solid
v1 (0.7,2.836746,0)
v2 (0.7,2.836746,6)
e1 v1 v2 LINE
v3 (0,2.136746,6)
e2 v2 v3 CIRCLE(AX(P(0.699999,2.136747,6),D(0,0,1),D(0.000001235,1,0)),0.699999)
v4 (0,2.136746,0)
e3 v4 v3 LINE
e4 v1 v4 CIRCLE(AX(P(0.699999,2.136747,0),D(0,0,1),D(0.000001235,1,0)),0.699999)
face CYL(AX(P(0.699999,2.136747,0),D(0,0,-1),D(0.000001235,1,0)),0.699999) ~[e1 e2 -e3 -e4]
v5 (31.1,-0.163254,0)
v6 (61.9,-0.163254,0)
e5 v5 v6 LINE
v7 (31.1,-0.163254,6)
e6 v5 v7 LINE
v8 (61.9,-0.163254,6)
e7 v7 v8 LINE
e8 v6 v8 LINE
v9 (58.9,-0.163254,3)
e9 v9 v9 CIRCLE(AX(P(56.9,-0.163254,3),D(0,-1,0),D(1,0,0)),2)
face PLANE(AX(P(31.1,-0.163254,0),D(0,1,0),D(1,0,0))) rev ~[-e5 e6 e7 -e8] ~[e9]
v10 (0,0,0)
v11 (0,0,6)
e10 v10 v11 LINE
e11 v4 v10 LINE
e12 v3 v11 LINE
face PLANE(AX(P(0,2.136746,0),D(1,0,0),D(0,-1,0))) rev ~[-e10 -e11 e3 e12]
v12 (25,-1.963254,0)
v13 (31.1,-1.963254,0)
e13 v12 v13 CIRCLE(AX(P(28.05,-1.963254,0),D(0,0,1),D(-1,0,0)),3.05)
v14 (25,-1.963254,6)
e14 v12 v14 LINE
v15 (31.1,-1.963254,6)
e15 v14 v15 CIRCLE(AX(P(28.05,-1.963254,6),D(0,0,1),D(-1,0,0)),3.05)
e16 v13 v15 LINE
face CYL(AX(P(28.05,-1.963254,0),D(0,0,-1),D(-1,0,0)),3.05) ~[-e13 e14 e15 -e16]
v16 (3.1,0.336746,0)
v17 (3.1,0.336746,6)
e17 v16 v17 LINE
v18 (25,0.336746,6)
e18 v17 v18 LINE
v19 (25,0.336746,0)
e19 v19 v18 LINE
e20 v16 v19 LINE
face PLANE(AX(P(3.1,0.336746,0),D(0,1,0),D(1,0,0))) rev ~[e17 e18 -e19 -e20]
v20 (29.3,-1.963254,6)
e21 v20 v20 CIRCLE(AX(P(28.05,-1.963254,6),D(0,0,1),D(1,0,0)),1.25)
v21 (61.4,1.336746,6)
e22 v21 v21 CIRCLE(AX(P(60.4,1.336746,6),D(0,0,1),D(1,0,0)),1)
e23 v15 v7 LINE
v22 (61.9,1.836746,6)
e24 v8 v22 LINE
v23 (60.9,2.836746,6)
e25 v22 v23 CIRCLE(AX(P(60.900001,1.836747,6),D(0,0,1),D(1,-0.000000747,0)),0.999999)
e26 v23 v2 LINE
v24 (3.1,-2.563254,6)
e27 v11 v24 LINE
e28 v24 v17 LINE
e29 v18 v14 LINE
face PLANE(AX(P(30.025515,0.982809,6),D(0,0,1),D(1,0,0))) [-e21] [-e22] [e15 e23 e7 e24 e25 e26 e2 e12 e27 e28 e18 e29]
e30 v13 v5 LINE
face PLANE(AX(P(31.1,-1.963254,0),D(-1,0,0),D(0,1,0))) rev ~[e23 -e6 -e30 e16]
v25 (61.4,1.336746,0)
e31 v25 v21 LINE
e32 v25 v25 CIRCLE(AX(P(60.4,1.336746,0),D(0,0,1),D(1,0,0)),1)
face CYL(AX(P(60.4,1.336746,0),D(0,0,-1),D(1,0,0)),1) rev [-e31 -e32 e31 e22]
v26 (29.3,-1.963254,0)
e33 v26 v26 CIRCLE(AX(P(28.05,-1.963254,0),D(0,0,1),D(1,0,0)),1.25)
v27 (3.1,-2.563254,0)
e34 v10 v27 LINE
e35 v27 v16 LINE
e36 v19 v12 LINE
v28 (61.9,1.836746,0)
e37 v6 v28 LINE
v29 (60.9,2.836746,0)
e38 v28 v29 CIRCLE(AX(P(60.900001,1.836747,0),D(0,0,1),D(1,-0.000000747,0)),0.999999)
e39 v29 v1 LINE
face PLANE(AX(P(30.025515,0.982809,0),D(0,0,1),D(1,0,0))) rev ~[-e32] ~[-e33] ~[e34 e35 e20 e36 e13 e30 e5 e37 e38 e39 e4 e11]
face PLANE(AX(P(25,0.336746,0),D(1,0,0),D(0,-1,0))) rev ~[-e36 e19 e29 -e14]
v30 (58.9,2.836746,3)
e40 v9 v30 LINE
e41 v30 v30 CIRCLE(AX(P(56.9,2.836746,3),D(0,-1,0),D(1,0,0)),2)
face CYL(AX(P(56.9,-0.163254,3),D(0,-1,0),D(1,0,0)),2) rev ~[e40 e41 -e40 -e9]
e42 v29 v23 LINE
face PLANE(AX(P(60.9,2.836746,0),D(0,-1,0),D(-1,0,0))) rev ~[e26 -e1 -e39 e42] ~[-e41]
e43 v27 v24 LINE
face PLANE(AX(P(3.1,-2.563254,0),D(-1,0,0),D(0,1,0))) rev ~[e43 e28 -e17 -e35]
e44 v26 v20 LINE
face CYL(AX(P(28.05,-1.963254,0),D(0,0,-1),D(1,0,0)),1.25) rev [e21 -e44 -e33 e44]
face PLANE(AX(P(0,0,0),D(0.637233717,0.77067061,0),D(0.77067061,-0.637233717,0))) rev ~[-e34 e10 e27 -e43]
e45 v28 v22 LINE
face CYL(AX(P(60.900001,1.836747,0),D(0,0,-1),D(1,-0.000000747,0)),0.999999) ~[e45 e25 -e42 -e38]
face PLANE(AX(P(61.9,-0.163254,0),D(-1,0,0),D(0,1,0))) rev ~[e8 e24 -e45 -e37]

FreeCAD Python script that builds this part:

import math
import FreeCAD as App
import Part
import Sketcher
from FreeCAD import Vector
Q = App.Units.Quantity

doc = App.newDocument("Part")
params = doc.addObject("Spreadsheet::Sheet", "Params")
for row, (alias, value) in enumerate([
    ("sketch1_diameter", "2 mm"),
    ("sketch1_diameter2", "2.5 mm"),
    ("sketch1_radius", "0.699999 mm"),
    ("sketch1_height", "2 mm"),
    ("sketch1_radius2", "3.05 mm"),
    ("pad1_length", "6 mm"),
    ("sketch2_diameter", "4 mm"),
    ("pocket1_length", "25 mm"),
], start=1):
    params.set(f"A{row}", alias)
    params.set(f"B{row}", "=" + value)
    params.setAlias(f"B{row}", alias)

body = doc.addObject("PartDesign::Body", "Body")

sketch1 = doc.addObject("Sketcher::SketchObject", "Sketch")
body.addObject(sketch1)
sketch1.AttachmentSupport = (doc.XY_Plane, [""])
sketch1.MapMode = "FlatFace"
sketch1.addGeometry(Part.LineSegment(Vector(60.9, 2.8, 0), Vector(0.7, 2.8, 0)), False)
sketch1.addGeometry(Part.ArcOfCircle(Part.Circle(Vector(0.7, 2.1, 0), Vector(0, 0, 1), 0.7), math.radians(90), math.radians(180)), False)
sketch1.addGeometry(Part.LineSegment(Vector(0, 2.1, 0), Vector(0, 0, 0)), False)
sketch1.addGeometry(Part.LineSegment(Vector(0, 0, 0), Vector(3.1, -2.6, 0)), False)
sketch1.addGeometry(Part.LineSegment(Vector(3.1, -2.6, 0), Vector(3.1, 0.3, 0)), False)
sketch1.addGeometry(Part.LineSegment(Vector(3.1, 0.3, 0), Vector(25, 0.3, 0)), False)
sketch1.addGeometry(Part.LineSegment(Vector(25, 0.3, 0), Vector(25, -2, 0)), False)
sketch1.addGeometry(Part.ArcOfCircle(Part.Circle(Vector(28.1, -2, 0), Vector(0, 0, 1), 3), math.radians(180), math.radians(360)), False)
sketch1.addGeometry(Part.LineSegment(Vector(31.1, -2, 0), Vector(31.1, -0.2, 0)), False)
sketch1.addGeometry(Part.LineSegment(Vector(31.1, -0.2, 0), Vector(61.9, -0.2, 0)), False)
sketch1.addGeometry(Part.LineSegment(Vector(61.9, -0.2, 0), Vector(61.9, 1.8, 0)), False)
sketch1.addGeometry(Part.ArcOfCircle(Part.Circle(Vector(60.9, 1.8, 0), Vector(0, 0, 1), 1), math.radians(0), math.radians(90)), False)
sketch1.addGeometry(Part.Circle(Vector(28.1, -2, 0), Vector(0, 0, 1), 1.2), False)
sketch1.addGeometry(Part.Circle(Vector(60.4, 1.3, 0), Vector(0, 0, 1), 1), False)
sketch1.addConstraint(Sketcher.Constraint("Tangent", 0, 2, 1, 1))
sketch1.addConstraint(Sketcher.Constraint("Tangent", 1, 2, 2, 1))
sketch1.addConstraint(Sketcher.Constraint("Coincident", 2, 2, 3, 1))
sketch1.addConstraint(Sketcher.Constraint("Coincident", 3, 2, 4, 1))
sketch1.addConstraint(Sketcher.Constraint("Coincident", 4, 2, 5, 1))
sketch1.addConstraint(Sketcher.Constraint("Coincident", 5, 2, 6, 1))
sketch1.addConstraint(Sketcher.Constraint("Tangent", 6, 2, 7, 1))
sketch1.addConstraint(Sketcher.Constraint("Tangent", 7, 2, 8, 1))
sketch1.addConstraint(Sketcher.Constraint("Coincident", 8, 2, 9, 1))
sketch1.addConstraint(Sketcher.Constraint("Coincident", 9, 2, 10, 1))
sketch1.addConstraint(Sketcher.Constraint("Tangent", 10, 2, 11, 1))
sketch1.addConstraint(Sketcher.Constraint("Tangent", 11, 2, 0, 1))
sketch1.addConstraint(Sketcher.Constraint("Horizontal", 0))
sketch1.addConstraint(Sketcher.Constraint("Vertical", 2))
sketch1.addConstraint(Sketcher.Constraint("Vertical", 4))
sketch1.addConstraint(Sketcher.Constraint("Horizontal", 5))
sketch1.addConstraint(Sketcher.Constraint("Vertical", 6))
sketch1.addConstraint(Sketcher.Constraint("Vertical", 8))
sketch1.addConstraint(Sketcher.Constraint("Horizontal", 9))
sketch1.addConstraint(Sketcher.Constraint("Vertical", 10))
sketch1.addConstraint(Sketcher.Constraint("Coincident", 2, 2, -1, 1))
sketch1.addConstraint(Sketcher.Constraint("Coincident", 12, 3, 7, 3))
sketch1.addConstraint(Sketcher.Constraint("Equal", 11, 13))
sketch1.addConstraint(Sketcher.Constraint("Diameter", 13, Q("2 mm")))
sketch1.addConstraint(Sketcher.Constraint("Diameter", 12, Q("2.5 mm")))
sketch1.addConstraint(Sketcher.Constraint("Radius", 1, Q("0.699999 mm")))
sketch1.addConstraint(Sketcher.Constraint("DistanceY", 10, 1, 10, 2, Q("2 mm")))
sketch1.addConstraint(Sketcher.Constraint("Radius", 7, Q("3.05 mm")))
sketch1.addConstraint(Sketcher.Constraint("DistanceX", 0, 2, 0, 1, Q("60.2 mm")))
sketch1.addConstraint(Sketcher.Constraint("DistanceX", 5, 1, 5, 2, Q("21.9 mm")))
sketch1.addConstraint(Sketcher.Constraint("DistanceX", 9, 1, 9, 2, Q("30.8 mm")))
sketch1.addConstraint(Sketcher.Constraint("DistanceY", 4, 1, 4, 2, Q("2.9 mm")))
sketch1.addConstraint(Sketcher.Constraint("DistanceY", 6, 2, 6, 1, Q("2.3 mm")))
sketch1.addConstraint(Sketcher.Constraint("DistanceY", 8, 1, 8, 2, Q("1.8 mm")))
sketch1.addConstraint(Sketcher.Constraint("DistanceX", -1, 1, 13, 3, Q("60.4 mm")))
sketch1.addConstraint(Sketcher.Constraint("DistanceY", 13, 3, 11, 3, Q("0.500001 mm")))
sketch1.addConstraint(Sketcher.Constraint("Distance", 3, Q("4.022471 mm")))
sketch1.setExpression("Constraints[23]", "Params.sketch1_diameter")
sketch1.setExpression("Constraints[24]", "Params.sketch1_diameter2")
sketch1.setExpression("Constraints[25]", "Params.sketch1_radius")
sketch1.setExpression("Constraints[26]", "Params.sketch1_height")
sketch1.setExpression("Constraints[27]", "Params.sketch1_radius2")
pad1 = doc.addObject("PartDesign::Pad", "Pad")
body.addObject(pad1)
pad1.Profile = sketch1
pad1.setExpression("Length", "Params.pad1_length")

sketch2 = doc.addObject("Sketcher::SketchObject", "Sketch001")
body.addObject(sketch2)
sketch2.AttachmentSupport = (doc.XZ_Plane, [""])
sketch2.MapMode = "FlatFace"
sketch2.AttachmentOffset = App.Placement(Vector(0, 0, 0.163254), App.Rotation())
sketch2.addGeometry(Part.Circle(Vector(56.9, 3, 0), Vector(0, 0, 1), 2), False)
sketch2.addConstraint(Sketcher.Constraint("Diameter", 0, Q("4 mm")))
sketch2.addConstraint(Sketcher.Constraint("DistanceY", -1, 1, 0, 3, Q("3 mm")))
sketch2.addConstraint(Sketcher.Constraint("DistanceX", -1, 1, 0, 3, Q("56.9 mm")))
sketch2.setExpression("Constraints[0]", "Params.sketch2_diameter")
pocket1 = doc.addObject("PartDesign::Pocket", "Pocket")
body.addObject(pocket1)
pocket1.Profile = sketch2
pocket1.setExpression("Length", "Params.pocket1_length")

doc.recompute()
